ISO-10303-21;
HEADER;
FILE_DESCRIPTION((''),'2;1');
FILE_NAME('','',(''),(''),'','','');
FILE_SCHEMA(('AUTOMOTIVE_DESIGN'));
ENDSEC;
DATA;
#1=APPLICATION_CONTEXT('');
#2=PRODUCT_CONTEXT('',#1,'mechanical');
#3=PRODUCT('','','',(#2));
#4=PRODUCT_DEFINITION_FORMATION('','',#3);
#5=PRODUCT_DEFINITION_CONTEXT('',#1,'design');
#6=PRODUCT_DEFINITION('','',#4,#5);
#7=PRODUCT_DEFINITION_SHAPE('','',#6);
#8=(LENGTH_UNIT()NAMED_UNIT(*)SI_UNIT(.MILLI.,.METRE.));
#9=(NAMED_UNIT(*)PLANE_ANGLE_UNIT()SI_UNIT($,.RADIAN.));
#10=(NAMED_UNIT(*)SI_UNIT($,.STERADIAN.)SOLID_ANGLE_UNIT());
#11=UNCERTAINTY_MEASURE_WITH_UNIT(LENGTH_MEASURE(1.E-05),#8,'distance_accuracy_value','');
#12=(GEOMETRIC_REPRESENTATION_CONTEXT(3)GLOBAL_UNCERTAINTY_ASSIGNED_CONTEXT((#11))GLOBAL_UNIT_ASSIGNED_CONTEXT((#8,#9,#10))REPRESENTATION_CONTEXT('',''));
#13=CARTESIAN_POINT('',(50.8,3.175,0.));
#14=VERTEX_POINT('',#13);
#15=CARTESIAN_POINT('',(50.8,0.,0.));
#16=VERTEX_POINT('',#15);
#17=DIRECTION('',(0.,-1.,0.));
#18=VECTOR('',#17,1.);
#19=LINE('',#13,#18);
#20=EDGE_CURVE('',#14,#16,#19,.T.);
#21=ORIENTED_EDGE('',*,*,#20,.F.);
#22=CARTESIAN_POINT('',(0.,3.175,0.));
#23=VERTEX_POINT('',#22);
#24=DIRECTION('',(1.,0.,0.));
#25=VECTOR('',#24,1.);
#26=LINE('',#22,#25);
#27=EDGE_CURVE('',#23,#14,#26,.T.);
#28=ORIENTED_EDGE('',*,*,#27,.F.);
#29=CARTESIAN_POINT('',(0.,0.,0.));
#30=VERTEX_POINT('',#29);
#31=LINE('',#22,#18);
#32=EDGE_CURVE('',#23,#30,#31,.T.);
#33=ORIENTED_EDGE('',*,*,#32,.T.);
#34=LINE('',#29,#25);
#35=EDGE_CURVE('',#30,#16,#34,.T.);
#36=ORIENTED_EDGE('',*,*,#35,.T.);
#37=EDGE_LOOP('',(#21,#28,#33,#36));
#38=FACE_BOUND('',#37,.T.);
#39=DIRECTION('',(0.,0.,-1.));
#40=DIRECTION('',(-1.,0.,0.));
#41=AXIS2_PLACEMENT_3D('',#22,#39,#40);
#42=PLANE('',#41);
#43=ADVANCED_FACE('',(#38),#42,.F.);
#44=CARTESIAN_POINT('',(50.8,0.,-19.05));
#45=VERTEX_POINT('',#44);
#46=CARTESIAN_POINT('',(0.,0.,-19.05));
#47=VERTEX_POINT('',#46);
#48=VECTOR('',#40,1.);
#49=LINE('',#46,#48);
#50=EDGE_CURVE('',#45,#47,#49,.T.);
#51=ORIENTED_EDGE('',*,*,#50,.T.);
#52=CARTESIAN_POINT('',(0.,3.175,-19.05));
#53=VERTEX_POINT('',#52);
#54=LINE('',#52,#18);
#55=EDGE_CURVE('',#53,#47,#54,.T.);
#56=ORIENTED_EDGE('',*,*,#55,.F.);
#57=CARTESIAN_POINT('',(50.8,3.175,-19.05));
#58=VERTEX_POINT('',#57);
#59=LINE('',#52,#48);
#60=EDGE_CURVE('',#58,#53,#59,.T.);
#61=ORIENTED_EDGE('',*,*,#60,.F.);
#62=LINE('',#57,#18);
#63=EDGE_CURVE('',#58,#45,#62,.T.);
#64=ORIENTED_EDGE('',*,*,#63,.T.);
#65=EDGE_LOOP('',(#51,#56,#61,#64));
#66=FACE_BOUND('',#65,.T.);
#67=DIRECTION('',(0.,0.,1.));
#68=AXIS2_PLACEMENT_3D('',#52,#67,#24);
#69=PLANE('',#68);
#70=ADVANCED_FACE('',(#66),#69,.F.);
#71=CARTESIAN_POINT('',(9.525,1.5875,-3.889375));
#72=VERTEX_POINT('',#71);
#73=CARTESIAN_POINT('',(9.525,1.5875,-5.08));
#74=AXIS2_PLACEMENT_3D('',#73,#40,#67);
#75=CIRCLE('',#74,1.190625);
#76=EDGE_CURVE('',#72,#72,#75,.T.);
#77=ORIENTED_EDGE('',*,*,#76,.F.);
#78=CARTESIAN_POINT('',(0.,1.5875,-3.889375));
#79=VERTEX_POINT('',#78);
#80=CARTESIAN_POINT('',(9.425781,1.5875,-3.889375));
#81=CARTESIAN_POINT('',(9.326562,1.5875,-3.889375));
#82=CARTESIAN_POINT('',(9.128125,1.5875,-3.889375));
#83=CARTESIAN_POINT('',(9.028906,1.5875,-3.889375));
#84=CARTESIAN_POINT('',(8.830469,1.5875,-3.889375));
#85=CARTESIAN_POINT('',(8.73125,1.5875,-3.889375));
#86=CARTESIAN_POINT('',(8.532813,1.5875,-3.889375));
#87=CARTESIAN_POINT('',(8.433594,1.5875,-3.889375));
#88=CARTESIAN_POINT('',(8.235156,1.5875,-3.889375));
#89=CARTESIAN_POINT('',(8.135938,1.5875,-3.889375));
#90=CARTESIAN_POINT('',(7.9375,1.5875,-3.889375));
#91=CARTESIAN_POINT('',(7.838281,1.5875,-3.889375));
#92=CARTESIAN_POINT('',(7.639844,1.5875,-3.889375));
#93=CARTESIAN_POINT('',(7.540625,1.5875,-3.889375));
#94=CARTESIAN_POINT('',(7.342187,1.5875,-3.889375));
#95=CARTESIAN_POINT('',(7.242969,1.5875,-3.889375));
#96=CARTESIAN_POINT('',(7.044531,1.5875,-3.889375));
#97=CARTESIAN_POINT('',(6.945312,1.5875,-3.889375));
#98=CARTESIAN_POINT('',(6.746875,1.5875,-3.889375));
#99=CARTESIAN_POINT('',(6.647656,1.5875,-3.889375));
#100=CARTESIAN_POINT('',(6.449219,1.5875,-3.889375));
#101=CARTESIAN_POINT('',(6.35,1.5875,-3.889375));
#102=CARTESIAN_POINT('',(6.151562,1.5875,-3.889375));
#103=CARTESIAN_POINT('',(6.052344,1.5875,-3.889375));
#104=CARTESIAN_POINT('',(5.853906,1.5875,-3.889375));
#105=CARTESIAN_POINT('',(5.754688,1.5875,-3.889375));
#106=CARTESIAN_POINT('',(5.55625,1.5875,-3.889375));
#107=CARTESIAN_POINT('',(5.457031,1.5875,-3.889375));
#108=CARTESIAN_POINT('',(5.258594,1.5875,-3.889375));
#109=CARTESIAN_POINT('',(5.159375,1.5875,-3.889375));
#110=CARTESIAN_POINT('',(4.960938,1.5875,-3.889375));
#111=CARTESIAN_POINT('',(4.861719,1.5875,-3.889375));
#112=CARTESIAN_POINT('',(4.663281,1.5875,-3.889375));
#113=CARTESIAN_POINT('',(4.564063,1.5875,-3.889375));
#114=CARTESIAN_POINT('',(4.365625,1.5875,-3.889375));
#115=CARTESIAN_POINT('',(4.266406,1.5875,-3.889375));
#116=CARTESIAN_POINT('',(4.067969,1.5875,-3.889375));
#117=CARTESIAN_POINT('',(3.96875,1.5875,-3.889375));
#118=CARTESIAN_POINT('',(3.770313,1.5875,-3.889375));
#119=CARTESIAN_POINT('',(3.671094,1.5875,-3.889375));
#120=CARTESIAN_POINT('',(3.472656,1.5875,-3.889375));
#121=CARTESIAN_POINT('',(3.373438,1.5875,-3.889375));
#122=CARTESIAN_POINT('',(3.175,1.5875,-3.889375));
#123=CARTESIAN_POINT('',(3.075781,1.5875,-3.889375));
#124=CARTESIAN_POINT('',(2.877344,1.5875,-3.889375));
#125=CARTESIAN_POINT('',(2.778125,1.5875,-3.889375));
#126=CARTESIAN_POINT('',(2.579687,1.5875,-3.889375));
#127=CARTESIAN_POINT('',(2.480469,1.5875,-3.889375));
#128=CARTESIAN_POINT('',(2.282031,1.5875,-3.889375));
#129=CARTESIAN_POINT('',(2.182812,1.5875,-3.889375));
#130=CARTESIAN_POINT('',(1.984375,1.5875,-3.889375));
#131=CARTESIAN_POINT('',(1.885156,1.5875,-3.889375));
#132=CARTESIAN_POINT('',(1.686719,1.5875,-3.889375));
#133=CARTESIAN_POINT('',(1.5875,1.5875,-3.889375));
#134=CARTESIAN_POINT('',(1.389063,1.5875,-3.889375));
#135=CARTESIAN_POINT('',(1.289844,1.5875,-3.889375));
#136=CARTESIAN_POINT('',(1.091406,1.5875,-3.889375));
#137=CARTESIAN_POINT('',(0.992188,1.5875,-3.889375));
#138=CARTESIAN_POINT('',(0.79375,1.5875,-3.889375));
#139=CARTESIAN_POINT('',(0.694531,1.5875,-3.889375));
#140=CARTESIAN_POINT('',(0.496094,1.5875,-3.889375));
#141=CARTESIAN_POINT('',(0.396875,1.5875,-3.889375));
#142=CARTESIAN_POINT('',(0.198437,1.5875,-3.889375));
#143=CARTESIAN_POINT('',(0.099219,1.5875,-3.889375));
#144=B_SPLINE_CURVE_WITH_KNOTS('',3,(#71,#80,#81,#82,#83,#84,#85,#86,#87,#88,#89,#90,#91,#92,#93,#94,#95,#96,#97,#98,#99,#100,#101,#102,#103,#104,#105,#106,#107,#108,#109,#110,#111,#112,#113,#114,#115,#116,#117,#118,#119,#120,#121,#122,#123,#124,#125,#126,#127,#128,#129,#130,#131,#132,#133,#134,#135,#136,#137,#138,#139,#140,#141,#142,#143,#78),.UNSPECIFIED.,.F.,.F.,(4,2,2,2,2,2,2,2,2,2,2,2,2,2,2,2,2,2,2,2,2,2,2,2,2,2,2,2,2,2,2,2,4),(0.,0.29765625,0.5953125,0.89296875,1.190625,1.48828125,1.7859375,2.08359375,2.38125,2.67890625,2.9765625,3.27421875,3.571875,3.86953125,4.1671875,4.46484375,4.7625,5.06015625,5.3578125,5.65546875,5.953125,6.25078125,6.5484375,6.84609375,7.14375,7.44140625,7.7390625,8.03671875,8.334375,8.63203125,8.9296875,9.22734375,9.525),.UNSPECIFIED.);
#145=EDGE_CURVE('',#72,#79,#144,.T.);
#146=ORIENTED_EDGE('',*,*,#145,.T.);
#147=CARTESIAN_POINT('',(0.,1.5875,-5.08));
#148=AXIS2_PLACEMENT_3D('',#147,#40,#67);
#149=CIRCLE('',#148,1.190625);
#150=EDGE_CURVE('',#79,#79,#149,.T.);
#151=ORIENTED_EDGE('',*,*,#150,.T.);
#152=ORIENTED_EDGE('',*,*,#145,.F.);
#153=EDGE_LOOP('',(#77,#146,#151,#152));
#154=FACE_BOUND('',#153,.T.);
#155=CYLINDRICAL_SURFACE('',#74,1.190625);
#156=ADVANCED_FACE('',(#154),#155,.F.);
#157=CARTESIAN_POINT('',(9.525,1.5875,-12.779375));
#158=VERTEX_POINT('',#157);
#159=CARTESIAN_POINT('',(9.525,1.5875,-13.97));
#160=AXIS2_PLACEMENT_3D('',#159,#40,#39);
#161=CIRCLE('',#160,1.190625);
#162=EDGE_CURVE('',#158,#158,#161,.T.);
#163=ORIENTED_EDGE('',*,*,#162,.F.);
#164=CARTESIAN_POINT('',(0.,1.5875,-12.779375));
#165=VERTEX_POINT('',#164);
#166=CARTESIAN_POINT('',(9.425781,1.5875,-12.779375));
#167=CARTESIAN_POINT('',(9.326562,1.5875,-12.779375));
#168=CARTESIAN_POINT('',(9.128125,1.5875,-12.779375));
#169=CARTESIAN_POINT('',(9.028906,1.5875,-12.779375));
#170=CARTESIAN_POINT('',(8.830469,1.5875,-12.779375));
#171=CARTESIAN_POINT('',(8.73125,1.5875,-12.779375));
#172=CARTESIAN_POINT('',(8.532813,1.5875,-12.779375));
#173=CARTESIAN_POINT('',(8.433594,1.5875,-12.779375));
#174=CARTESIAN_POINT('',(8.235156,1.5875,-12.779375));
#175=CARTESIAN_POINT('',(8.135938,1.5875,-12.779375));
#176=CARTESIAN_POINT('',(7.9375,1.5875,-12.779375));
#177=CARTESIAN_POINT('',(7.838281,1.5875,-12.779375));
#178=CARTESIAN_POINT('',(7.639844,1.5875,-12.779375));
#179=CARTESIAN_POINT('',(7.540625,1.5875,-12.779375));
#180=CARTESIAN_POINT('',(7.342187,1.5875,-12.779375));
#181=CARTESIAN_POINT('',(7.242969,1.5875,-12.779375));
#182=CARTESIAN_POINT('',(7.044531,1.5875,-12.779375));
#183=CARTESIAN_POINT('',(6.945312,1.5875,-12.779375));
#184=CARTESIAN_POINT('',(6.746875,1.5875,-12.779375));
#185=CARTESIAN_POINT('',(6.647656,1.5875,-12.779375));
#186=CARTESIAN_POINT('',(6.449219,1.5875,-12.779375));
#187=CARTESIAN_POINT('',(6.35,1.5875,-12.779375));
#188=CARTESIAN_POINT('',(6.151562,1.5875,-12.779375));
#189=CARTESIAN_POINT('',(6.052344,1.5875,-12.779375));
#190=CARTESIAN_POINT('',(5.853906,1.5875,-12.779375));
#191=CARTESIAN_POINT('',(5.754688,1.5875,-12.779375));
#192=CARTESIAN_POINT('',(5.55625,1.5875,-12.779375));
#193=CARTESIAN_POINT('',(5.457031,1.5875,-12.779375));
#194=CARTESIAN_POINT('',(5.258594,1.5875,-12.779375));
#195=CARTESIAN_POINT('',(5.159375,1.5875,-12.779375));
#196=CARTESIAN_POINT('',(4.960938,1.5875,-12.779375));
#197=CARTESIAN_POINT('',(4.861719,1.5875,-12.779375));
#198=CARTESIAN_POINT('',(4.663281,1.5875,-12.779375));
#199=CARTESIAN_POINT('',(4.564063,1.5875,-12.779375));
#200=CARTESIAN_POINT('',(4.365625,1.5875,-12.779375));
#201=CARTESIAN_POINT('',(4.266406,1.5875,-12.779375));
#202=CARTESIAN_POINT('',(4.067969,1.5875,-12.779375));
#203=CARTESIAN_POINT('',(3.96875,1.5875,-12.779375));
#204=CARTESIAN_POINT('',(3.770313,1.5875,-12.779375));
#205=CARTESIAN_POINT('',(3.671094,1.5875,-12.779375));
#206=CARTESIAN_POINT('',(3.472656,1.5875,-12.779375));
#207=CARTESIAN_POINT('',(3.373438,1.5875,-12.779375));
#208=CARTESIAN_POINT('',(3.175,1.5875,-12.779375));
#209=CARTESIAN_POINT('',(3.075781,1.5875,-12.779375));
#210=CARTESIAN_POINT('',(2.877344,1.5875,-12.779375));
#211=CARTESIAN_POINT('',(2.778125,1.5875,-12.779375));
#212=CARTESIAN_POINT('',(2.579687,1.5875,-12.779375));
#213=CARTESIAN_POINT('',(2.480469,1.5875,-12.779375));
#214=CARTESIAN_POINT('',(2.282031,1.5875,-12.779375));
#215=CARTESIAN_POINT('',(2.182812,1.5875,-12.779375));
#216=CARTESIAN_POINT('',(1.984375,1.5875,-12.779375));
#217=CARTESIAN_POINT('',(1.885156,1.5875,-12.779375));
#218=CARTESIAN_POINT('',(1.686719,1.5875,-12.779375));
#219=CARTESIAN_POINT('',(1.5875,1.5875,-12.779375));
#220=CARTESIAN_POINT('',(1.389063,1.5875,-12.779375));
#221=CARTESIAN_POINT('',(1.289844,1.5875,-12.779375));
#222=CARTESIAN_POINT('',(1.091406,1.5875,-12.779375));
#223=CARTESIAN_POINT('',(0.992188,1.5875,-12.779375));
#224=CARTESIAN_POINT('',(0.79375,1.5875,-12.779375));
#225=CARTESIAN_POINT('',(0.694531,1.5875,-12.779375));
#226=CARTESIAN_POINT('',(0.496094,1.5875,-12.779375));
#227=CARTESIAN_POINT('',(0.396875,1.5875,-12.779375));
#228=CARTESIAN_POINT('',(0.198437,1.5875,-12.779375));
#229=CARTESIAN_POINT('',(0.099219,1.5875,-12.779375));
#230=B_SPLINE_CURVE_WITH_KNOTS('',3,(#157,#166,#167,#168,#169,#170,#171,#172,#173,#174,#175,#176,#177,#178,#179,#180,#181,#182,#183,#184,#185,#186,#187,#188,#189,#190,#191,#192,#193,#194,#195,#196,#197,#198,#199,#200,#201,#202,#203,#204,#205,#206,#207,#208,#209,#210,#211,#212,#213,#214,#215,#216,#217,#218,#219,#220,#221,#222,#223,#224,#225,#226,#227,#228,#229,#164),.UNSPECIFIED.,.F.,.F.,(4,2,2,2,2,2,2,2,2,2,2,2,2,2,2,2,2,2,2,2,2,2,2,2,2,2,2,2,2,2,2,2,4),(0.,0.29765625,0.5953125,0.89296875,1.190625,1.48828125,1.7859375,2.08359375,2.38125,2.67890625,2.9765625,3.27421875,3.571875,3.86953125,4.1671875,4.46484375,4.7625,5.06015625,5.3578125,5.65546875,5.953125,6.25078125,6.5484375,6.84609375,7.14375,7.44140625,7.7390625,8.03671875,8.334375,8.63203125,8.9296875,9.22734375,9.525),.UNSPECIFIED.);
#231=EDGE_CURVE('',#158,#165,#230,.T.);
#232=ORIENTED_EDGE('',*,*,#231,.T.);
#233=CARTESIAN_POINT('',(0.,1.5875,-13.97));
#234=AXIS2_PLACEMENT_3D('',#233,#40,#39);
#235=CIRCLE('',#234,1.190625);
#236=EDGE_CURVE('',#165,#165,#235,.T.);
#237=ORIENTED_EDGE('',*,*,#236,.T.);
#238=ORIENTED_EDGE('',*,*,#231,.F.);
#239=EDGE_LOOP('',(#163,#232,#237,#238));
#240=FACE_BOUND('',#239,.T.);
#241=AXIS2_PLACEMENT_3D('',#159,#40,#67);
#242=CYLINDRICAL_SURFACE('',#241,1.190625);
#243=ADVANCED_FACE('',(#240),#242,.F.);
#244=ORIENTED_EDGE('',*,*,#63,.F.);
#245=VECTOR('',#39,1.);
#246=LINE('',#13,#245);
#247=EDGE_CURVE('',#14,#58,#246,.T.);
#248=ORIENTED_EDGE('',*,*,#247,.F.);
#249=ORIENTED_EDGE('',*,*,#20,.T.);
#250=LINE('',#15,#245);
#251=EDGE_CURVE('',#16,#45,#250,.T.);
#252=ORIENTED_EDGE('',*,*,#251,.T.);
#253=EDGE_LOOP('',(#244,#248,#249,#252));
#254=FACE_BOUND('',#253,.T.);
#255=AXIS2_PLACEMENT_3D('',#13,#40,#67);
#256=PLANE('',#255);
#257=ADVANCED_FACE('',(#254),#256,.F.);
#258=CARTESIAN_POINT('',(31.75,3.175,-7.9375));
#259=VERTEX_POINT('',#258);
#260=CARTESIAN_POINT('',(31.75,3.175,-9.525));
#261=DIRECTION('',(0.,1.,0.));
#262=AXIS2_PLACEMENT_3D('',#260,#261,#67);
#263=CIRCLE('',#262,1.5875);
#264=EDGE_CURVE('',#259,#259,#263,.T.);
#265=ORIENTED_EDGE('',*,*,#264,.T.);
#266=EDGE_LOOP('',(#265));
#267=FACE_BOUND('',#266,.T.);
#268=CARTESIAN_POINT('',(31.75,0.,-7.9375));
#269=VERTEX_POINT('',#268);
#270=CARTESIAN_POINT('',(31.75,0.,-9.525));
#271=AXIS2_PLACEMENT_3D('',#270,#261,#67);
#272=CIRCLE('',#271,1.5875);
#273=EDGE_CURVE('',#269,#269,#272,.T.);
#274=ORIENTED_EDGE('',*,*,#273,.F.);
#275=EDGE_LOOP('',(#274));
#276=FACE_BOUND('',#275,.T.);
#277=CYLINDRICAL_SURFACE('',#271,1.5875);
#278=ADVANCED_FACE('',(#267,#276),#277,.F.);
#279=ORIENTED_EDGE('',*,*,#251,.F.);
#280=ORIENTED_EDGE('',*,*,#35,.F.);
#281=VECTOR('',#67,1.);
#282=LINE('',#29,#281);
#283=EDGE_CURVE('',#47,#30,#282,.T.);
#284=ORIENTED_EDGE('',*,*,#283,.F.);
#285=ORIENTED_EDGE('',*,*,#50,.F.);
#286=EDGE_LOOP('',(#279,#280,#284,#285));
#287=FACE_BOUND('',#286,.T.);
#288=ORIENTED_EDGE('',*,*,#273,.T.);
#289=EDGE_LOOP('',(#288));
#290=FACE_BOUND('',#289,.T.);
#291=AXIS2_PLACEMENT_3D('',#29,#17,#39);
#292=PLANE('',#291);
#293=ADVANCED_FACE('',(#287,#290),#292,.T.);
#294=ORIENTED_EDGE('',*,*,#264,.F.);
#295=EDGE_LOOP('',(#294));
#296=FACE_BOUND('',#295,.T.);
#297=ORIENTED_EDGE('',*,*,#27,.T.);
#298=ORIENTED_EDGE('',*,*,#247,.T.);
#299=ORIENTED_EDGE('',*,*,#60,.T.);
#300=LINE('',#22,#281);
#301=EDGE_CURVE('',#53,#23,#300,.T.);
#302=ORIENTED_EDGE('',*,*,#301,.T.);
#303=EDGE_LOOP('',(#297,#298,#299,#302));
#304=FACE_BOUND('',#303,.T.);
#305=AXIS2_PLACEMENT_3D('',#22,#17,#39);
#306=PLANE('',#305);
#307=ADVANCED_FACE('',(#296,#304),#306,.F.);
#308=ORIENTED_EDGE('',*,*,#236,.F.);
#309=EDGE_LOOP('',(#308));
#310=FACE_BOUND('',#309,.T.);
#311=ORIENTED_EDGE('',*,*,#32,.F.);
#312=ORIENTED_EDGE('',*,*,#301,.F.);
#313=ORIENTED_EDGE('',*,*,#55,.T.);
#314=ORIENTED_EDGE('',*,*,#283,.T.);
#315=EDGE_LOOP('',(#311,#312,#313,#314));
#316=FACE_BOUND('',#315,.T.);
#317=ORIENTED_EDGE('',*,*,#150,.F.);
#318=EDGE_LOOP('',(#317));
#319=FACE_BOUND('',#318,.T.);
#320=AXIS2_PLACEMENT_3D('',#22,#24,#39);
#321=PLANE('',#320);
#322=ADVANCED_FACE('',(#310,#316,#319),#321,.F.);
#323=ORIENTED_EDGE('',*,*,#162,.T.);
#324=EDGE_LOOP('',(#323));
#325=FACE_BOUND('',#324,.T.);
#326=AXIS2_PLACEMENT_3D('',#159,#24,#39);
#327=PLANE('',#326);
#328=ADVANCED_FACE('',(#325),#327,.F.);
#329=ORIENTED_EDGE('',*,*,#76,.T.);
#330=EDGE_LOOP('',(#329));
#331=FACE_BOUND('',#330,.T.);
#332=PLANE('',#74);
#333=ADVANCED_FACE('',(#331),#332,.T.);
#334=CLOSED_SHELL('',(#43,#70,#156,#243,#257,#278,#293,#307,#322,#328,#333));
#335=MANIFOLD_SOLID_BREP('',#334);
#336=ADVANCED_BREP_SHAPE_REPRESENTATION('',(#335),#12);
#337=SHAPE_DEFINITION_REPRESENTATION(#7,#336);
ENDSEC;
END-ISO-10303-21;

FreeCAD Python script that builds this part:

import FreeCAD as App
import Part
import Sketcher
Q = App.Units.Quantity


def add_polygon(sketch, points):
    """Adds a closed chain of lines whose ends are joined by coincident constraints."""
    first, n = sketch.GeometryCount, len(points)
    for a, b in zip(points, points[1:] + points[:1]):
        sketch.addGeometry(Part.LineSegment(App.Vector(*a, 0), App.Vector(*b, 0)), False)
    for i in range(n):
        sketch.addConstraint(Sketcher.Constraint("Coincident", first + i, 2, first + (i + 1) % n, 1))

doc = App.newDocument("Part")
body = doc.addObject("PartDesign::Body", "Body")

# Sketch on XZ plane
sketch1 = body.newObject("Sketcher::SketchObject", "Sketch")
sketch1.AttachmentSupport = (doc.getObject("XZ_Plane"), [""])
sketch1.MapMode = "FlatFace"
add_polygon(sketch1, [(0, -19.05), (0, 0), (50.8, 0), (50.8, -19.05)])  # lines 0-3
sketch1.addConstraint(Sketcher.Constraint("Vertical", 0))
sketch1.addConstraint(Sketcher.Constraint("Horizontal", 1))
sketch1.addConstraint(Sketcher.Constraint("Vertical", 2))
sketch1.addConstraint(Sketcher.Constraint("Horizontal", 3))
sketch1.addConstraint(Sketcher.Constraint("Coincident", 0, 2, -1, 1))
sketch1.addConstraint(Sketcher.Constraint("DistanceX", 1, 1, 1, 2, Q("2 in")))
sketch1.addConstraint(Sketcher.Constraint("DistanceY", 0, 1, 0, 2, Q("0.75 in")))
pad1 = body.newObject("PartDesign::Pad", "Pad")
pad1.Profile = sketch1
pad1.Length = Q("0.125 in")
pad1.Reversed = True

# Sketch on YZ plane
sketch2 = body.newObject("Sketcher::SketchObject", "Sketch001")
sketch2.AttachmentSupport = (doc.getObject("YZ_Plane"), [""])
sketch2.MapMode = "FlatFace"
sketch2.addGeometry(Part.Circle(App.Vector(1.5875, -5.08, 0), App.Vector(0, 0, 1), 1.190625), False)
sketch2.addGeometry(Part.Circle(App.Vector(1.5875, -13.97, 0), App.Vector(0, 0, 1), 1.190625), False)
sketch2.addConstraint(Sketcher.Constraint("Equal", 0, 1))
sketch2.addConstraint(Sketcher.Constraint("Vertical", 0, 3, 1, 3))
sketch2.addConstraint(Sketcher.Constraint("Diameter", 0, Q("0.09375 in")))
sketch2.addConstraint(Sketcher.Constraint("DistanceY", 0, 3, -1, 1, Q("0.2 in")))
sketch2.addConstraint(Sketcher.Constraint("DistanceY", 1, 3, -1, 1, Q("0.55 in")))
sketch2.addConstraint(Sketcher.Constraint("DistanceX", -1, 1, 0, 3, Q("0.0625 in")))
pocket1 = body.newObject("PartDesign::Pocket", "Pocket")
pocket1.Profile = sketch2
pocket1.Length = Q("0.375 in")
pocket1.Reversed = True

# Sketch on XZ plane
sketch3 = body.newObject("Sketcher::SketchObject", "Sketch002")
sketch3.AttachmentSupport = (doc.getObject("XZ_Plane"), [""])
sketch3.MapMode = "FlatFace"
sketch3.AttachmentOffset = App.Placement(App.Vector(0, 0, -0.125 * 25.4), App.Rotation())
sketch3.addGeometry(Part.Circle(App.Vector(31.75, -9.525, 0), App.Vector(0, 0, 1), 1.5875), False)
sketch3.addConstraint(Sketcher.Constraint("Diameter", 0, Q("0.125 in")))
sketch3.addConstraint(Sketcher.Constraint("DistanceX", -1, 1, 0, 3, Q("1.25 in")))
sketch3.addConstraint(Sketcher.Constraint("DistanceY", 0, 3, -1, 1, Q("0.375 in")))
pocket2 = body.newObject("PartDesign::Pocket", "Pocket001")
pocket2.Profile = sketch3
pocket2.Type = "ThroughAll"
pocket2.Reversed = True

doc.recompute()
